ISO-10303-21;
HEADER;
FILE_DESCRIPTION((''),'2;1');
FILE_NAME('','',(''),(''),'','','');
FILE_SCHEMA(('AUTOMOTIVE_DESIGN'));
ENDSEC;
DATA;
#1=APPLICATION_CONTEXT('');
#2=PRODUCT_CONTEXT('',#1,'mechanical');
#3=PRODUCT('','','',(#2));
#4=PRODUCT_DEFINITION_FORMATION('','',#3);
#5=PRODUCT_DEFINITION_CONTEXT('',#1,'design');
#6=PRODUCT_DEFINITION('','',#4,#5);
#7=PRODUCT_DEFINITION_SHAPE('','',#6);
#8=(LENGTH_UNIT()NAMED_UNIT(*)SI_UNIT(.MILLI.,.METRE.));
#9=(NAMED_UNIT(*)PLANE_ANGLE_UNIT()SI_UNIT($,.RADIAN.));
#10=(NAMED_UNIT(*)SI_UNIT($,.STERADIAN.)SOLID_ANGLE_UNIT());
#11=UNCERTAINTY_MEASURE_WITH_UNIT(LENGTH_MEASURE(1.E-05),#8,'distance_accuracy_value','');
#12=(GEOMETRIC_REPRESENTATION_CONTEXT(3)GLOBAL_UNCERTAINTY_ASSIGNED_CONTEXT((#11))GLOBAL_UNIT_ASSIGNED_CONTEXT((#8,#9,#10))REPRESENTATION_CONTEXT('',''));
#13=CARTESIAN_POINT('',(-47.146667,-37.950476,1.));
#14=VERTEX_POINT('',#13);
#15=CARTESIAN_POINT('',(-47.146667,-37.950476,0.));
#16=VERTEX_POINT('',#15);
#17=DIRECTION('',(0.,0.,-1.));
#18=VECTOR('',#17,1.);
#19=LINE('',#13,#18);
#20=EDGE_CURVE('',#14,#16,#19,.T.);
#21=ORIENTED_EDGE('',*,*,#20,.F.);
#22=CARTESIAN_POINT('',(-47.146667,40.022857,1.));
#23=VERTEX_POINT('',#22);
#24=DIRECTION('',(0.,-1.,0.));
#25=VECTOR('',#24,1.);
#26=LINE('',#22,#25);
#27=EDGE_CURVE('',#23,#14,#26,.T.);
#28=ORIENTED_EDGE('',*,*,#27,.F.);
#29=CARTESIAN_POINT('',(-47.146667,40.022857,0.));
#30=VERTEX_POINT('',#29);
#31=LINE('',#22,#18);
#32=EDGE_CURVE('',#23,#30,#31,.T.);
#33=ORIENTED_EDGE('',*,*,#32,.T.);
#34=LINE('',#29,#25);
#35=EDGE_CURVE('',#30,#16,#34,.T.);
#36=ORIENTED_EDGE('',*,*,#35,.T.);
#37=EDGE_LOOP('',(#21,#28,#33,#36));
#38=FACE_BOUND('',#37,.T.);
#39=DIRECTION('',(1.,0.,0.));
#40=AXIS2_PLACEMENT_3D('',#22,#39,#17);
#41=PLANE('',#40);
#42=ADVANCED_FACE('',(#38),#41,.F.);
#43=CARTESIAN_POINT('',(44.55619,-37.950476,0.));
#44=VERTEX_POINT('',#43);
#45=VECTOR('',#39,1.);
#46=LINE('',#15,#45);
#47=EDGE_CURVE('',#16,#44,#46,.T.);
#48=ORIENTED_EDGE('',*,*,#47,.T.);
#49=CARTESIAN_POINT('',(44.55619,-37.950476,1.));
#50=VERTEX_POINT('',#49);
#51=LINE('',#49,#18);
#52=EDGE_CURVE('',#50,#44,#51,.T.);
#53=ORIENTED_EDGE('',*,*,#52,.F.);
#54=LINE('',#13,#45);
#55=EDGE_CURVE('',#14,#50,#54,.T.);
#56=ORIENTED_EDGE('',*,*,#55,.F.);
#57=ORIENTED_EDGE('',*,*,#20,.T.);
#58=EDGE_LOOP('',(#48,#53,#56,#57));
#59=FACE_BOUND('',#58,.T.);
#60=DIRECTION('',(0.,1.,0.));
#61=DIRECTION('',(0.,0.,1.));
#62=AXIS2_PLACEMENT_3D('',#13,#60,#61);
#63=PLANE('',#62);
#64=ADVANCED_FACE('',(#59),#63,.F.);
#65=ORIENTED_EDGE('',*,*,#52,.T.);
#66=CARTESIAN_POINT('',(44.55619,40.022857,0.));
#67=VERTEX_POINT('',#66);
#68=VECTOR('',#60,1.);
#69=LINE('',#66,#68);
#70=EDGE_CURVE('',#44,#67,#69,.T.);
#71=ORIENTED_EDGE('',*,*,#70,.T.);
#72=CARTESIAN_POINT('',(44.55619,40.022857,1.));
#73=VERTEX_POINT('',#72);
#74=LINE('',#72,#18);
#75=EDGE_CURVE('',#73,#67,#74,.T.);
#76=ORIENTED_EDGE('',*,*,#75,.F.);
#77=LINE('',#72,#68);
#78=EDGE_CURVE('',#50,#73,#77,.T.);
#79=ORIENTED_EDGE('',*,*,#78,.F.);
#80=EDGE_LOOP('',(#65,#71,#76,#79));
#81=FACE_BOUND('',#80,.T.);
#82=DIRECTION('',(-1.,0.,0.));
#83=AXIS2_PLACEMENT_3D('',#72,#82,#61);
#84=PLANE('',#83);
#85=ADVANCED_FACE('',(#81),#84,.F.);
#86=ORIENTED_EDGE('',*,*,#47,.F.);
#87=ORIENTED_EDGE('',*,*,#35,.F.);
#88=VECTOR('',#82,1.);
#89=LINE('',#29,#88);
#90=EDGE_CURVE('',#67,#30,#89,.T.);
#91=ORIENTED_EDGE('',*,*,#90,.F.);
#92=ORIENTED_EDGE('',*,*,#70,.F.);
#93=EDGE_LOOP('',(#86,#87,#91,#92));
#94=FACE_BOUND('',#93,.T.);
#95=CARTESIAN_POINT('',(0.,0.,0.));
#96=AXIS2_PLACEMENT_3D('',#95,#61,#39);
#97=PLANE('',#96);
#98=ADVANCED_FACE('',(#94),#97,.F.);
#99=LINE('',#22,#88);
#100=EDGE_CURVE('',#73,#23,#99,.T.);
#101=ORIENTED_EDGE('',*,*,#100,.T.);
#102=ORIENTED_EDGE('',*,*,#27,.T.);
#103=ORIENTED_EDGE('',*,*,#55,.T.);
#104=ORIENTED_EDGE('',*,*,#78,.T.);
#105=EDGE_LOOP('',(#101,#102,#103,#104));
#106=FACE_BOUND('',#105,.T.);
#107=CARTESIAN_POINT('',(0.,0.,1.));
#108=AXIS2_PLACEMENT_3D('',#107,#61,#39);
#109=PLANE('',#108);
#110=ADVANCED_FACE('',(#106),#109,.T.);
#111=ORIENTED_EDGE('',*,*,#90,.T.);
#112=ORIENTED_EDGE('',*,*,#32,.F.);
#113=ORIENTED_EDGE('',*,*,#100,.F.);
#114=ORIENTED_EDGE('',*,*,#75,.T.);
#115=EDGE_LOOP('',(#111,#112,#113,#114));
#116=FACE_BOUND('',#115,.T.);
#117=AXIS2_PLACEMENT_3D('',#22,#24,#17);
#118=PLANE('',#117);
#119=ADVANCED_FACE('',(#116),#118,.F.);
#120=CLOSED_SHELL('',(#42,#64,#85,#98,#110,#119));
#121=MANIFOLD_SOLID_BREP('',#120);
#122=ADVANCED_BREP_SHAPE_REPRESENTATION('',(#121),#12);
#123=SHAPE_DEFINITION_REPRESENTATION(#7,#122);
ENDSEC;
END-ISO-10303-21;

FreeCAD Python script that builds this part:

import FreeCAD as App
import Part
import Sketcher

V = App.Vector
Q = App.Units.Quantity


def add_polygon(sketch, points):
    """Adds a closed chain of lines whose ends are joined by coincident constraints."""
    first, n = sketch.GeometryCount, len(points)
    for a, b in zip(points, points[1:] + points[:1]):
        sketch.addGeometry(Part.LineSegment(App.Vector(*a, 0), App.Vector(*b, 0)), False)
    for i in range(n):
        sketch.addConstraint(Sketcher.Constraint("Coincident", first + i, 2, first + (i + 1) % n, 1))

doc = App.newDocument("Part")
body = doc.addObject("PartDesign::Body", "Body")

# Sketch on XY plane
sketch1 = body.newObject("Sketcher::SketchObject", "Sketch")
sketch1.AttachmentSupport = (doc.getObject("XY_Plane"), [""])
sketch1.MapMode = "FlatFace"
add_polygon(sketch1, [(-47, 40), (-47, -38), (45, -38), (45, 40)])  # lines 0-3
sketch1.addConstraint([
    Sketcher.Constraint("Vertical", 0),
    Sketcher.Constraint("Horizontal", 1),
    Sketcher.Constraint("Vertical", 2),
    Sketcher.Constraint("Horizontal", 3),
    Sketcher.Constraint("DistanceX", 1, 1, 1, 2, Q("91.702857 mm")),
    Sketcher.Constraint("DistanceY", 0, 2, 0, 1, Q("77.973333 mm")),
    Sketcher.Constraint("DistanceX", -1, 1, 1, 2, Q("44.55619 mm")),
    Sketcher.Constraint("DistanceY", 0, 2, -1, 1, Q("37.950476 mm")),
])
pad1 = body.newObject("PartDesign::Pad", "Pad")
pad1.Profile = sketch1
pad1.Length = 1

doc.recompute()
